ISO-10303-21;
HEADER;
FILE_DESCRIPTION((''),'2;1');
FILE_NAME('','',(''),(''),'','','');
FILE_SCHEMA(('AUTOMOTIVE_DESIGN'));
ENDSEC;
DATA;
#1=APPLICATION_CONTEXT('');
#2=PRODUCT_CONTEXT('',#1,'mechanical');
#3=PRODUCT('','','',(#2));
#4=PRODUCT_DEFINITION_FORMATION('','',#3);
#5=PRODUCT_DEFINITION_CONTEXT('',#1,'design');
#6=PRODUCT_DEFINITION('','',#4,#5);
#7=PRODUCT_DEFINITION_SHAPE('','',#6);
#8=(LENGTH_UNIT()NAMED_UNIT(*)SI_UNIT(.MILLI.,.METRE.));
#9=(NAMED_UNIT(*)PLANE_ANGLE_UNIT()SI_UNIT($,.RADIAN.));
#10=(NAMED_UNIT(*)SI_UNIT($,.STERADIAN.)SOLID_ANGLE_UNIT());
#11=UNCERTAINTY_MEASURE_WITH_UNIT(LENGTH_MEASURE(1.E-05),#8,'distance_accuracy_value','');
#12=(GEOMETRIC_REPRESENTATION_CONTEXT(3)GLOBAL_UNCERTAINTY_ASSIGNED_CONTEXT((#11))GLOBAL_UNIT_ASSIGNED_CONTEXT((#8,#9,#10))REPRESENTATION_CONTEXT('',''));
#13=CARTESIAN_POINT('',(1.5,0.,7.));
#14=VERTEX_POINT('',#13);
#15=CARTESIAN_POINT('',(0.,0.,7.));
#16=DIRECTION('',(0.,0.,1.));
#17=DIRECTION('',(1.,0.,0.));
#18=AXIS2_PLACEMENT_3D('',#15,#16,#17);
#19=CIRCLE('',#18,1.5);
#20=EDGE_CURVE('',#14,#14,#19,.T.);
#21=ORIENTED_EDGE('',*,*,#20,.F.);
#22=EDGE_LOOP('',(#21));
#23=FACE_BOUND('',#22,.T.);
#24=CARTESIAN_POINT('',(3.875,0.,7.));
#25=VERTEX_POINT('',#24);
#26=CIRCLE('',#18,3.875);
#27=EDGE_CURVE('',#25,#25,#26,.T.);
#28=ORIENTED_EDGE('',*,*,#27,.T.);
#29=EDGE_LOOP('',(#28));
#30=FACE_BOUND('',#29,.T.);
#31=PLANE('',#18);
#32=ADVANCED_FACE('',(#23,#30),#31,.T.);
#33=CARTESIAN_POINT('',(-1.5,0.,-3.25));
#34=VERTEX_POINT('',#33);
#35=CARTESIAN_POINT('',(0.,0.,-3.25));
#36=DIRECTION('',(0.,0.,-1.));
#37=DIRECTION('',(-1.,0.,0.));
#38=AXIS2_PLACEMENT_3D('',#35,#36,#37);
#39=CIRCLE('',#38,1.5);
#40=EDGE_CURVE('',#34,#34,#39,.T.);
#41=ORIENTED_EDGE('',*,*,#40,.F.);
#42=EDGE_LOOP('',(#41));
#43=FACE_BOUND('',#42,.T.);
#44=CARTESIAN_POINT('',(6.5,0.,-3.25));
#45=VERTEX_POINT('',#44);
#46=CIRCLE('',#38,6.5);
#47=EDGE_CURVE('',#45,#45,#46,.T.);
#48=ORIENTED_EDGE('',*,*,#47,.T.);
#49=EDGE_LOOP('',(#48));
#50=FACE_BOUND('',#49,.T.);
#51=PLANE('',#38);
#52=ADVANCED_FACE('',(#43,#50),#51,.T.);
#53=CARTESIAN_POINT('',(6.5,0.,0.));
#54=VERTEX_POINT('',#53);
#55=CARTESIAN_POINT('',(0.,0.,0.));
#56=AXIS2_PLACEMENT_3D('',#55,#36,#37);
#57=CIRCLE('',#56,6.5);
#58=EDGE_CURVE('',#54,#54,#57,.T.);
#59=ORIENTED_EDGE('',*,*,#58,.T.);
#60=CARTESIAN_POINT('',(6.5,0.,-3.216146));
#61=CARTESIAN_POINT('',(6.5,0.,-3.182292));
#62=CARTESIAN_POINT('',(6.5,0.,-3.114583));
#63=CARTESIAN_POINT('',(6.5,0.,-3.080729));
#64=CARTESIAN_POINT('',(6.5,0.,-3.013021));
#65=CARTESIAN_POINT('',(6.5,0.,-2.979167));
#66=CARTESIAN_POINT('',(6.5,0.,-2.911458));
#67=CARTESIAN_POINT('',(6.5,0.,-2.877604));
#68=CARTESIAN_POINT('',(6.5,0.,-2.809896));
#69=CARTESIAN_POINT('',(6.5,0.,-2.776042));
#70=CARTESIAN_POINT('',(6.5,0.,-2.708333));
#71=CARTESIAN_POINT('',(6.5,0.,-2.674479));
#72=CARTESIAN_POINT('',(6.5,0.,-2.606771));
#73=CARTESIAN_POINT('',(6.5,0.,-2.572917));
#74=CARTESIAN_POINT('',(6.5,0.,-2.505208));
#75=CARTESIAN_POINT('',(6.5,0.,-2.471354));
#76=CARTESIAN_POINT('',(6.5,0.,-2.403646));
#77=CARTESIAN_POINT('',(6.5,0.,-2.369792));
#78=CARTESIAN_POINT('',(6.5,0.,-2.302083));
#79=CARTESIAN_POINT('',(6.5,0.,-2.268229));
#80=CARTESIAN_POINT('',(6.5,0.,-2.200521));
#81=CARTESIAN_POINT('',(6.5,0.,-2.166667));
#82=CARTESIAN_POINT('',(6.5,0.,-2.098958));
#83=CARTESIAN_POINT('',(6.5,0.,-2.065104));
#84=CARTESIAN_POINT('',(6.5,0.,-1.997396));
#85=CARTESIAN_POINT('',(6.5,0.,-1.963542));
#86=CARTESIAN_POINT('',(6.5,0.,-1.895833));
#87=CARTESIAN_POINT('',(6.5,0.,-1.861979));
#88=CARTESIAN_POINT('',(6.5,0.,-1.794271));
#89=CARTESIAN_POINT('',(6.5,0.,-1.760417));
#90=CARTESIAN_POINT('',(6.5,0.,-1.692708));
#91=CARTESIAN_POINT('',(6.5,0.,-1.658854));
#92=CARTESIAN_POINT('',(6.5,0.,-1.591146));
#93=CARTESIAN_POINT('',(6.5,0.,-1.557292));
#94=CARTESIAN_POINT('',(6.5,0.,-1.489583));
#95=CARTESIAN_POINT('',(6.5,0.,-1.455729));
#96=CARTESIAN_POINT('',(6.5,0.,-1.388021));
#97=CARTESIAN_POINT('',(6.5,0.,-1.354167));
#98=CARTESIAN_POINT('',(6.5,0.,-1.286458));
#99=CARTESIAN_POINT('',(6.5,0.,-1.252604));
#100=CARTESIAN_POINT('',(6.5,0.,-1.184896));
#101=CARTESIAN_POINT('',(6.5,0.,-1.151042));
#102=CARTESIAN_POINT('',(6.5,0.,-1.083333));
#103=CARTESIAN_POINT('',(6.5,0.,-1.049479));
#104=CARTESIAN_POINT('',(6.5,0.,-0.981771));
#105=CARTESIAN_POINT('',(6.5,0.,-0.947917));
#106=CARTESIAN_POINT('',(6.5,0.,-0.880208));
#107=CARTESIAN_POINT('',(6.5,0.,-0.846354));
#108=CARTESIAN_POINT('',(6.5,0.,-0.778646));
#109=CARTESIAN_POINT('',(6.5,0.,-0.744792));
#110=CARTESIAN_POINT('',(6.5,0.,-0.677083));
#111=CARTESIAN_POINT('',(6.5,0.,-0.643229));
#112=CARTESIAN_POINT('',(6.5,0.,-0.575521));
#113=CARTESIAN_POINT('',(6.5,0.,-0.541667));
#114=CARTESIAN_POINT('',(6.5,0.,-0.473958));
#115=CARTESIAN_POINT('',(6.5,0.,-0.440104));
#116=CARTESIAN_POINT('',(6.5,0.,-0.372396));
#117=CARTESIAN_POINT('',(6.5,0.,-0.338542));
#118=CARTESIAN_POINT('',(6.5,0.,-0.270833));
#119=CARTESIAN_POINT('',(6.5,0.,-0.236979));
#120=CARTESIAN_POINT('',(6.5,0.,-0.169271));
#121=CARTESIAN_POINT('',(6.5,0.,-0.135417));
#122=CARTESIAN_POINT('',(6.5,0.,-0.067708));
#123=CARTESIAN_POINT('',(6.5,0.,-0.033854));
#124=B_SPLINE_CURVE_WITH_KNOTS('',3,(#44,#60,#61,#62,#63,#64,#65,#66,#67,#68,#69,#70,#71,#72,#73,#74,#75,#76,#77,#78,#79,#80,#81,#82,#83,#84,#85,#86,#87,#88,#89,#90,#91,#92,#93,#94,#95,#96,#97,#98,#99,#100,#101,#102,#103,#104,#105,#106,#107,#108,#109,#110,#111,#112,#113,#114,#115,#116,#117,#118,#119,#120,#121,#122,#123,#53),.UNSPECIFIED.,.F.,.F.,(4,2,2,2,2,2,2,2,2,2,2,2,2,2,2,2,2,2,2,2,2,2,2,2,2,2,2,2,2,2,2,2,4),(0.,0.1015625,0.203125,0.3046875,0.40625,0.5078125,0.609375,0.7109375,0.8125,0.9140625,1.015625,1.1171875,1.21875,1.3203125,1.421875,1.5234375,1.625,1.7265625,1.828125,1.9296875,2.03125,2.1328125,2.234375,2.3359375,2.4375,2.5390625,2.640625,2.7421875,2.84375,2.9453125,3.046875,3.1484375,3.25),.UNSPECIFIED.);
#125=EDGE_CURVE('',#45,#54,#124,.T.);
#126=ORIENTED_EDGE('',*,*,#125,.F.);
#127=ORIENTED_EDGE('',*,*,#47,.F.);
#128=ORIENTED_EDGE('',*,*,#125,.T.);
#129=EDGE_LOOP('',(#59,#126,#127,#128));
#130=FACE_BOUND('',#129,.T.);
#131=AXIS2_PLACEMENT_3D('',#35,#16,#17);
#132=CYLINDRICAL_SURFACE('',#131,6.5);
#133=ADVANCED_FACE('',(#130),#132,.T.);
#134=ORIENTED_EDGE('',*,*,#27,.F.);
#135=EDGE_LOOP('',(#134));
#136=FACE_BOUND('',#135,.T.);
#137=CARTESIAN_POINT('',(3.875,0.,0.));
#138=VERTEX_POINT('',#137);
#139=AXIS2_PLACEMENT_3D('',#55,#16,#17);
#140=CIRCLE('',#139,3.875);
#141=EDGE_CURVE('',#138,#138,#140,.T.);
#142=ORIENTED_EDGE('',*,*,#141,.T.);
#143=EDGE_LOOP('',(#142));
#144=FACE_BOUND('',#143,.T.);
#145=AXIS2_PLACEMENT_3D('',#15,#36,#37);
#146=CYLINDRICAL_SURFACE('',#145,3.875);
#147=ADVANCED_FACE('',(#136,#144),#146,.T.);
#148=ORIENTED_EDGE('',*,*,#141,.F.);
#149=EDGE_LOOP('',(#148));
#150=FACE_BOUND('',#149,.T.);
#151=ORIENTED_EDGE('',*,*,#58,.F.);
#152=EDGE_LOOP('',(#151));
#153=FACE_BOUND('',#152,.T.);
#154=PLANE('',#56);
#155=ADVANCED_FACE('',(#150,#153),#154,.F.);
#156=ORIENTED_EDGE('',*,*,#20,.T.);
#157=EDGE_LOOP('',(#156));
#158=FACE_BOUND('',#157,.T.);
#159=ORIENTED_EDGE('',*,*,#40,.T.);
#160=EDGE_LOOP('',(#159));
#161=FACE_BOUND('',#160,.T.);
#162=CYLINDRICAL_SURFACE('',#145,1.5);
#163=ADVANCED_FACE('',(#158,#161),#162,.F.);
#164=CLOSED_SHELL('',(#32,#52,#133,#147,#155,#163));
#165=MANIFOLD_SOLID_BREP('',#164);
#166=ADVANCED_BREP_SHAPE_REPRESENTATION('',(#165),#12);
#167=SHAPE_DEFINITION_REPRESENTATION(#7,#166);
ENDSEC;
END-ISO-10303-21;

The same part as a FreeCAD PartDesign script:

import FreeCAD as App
import Part
import Sketcher

V = App.Vector
Q = App.Units.Quantity

doc = App.newDocument("Part")
body = doc.addObject("PartDesign::Body", "Body")

# Sketch on XY plane
sketch1 = doc.addObject("Sketcher::SketchObject", "Sketch")
body.addObject(sketch1)
sketch1.AttachmentSupport = (doc.XY_Plane, [""])
sketch1.MapMode = "FlatFace"
sketch1.addGeometry([
    Part.Circle(V(0, 0, 0), V(0, 0, 1), 3.875),
    Part.Circle(V(0, 0, 0), V(0, 0, 1), 1.5),
], False)
sketch1.addConstraint([
    Sketcher.Constraint("Coincident", 0, 3, -1, 1),
    Sketcher.Constraint("Coincident", 1, 3, -1, 1),
    Sketcher.Constraint("Diameter", 1, Q("3 mm")),
    Sketcher.Constraint("Diameter", 0, Q("7.75 mm")),
])
pad1 = doc.addObject("PartDesign::Pad", "Pad")
body.addObject(pad1)
pad1.Profile = sketch1
pad1.Length = 7

# Sketch on XY plane
sketch2 = doc.addObject("Sketcher::SketchObject", "Sketch001")
body.addObject(sketch2)
sketch2.AttachmentSupport = (doc.XY_Plane, [""])
sketch2.MapMode = "FlatFace"
sketch2.AttachmentOffset = App.Placement(V(0, 0, -3.25), App.Rotation())
sketch2.addGeometry([
    Part.Circle(V(0, 0, 0), V(0, 0, 1), 6.5),
    Part.Circle(V(0, 0, 0), V(0, 0, 1), 1.5),
], False)
sketch2.addConstraint([
    Sketcher.Constraint("Coincident", 0, 3, -1, 1),
    Sketcher.Constraint("Coincident", 1, 3, -1, 1),
    Sketcher.Constraint("Diameter", 0, Q("13 mm")),
    Sketcher.Constraint("Diameter", 1, Q("3 mm")),
])
pad2 = doc.addObject("PartDesign::Pad", "Pad001")
body.addObject(pad2)
pad2.Profile = sketch2
pad2.Length = 3.25

doc.recompute()
